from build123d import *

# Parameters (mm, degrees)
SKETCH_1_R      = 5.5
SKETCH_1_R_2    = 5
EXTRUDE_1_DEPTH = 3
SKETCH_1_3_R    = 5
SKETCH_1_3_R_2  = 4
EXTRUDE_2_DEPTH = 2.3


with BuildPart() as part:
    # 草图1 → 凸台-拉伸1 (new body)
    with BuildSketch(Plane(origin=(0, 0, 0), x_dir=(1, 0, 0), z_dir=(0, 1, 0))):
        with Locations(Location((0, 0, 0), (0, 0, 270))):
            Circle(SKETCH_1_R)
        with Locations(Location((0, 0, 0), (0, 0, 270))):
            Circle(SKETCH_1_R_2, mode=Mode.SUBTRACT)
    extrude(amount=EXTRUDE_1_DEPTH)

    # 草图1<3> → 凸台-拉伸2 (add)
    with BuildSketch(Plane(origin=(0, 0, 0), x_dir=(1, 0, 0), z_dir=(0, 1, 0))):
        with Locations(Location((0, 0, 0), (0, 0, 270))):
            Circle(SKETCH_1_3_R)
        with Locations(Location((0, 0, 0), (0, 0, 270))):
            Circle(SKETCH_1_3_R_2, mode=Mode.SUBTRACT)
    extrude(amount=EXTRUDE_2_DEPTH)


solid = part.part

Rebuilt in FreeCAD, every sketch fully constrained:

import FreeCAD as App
import Part
import Sketcher
Q = App.Units.Quantity

doc = App.newDocument("Part")
body = doc.addObject("PartDesign::Body", "Body")

sketch1 = body.newObject("Sketcher::SketchObject", "Sketch")
sketch1.AttachmentSupport = (doc.getObject("XZ_Plane"), [""])
sketch1.MapMode = "FlatFace"
sketch1.addGeometry([
    Part.Circle(App.Vector(0, 0, 0), App.Vector(0, 0, 1), 6),
    Part.Circle(App.Vector(0, 0, 0), App.Vector(0, 0, 1), 5),
], False)
sketch1.addConstraint([
    Sketcher.Constraint("Coincident", 0, 3, -1, 1),
    Sketcher.Constraint("Coincident", 1, 3, -1, 1),
    Sketcher.Constraint("Diameter", 0, Q("11 mm")),
    Sketcher.Constraint("Diameter", 1, Q("10 mm")),
])
pad1 = body.newObject("PartDesign::Pad", "Pad")
pad1.Profile = sketch1
pad1.Length = 3
pad1.Reversed = True

sketch2 = body.newObject("Sketcher::SketchObject", "Sketch001")
sketch2.AttachmentSupport = (doc.getObject("XZ_Plane"), [""])
sketch2.MapMode = "FlatFace"
sketch2.addGeometry([
    Part.Circle(App.Vector(0, 0, 0), App.Vector(0, 0, 1), 5),
    Part.Circle(App.Vector(0, 0, 0), App.Vector(0, 0, 1), 4),
], False)
sketch2.addConstraint([
    Sketcher.Constraint("Coincident", 0, 3, -1, 1),
    Sketcher.Constraint("Coincident", 1, 3, -1, 1),
    Sketcher.Constraint("Diameter", 0, Q("10 mm")),
    Sketcher.Constraint("Diameter", 1, Q("8 mm")),
])
pad2 = body.newObject("PartDesign::Pad", "Pad001")
pad2.Profile = sketch2
pad2.Length = 2.3
pad2.Reversed = True

doc.recompute()
